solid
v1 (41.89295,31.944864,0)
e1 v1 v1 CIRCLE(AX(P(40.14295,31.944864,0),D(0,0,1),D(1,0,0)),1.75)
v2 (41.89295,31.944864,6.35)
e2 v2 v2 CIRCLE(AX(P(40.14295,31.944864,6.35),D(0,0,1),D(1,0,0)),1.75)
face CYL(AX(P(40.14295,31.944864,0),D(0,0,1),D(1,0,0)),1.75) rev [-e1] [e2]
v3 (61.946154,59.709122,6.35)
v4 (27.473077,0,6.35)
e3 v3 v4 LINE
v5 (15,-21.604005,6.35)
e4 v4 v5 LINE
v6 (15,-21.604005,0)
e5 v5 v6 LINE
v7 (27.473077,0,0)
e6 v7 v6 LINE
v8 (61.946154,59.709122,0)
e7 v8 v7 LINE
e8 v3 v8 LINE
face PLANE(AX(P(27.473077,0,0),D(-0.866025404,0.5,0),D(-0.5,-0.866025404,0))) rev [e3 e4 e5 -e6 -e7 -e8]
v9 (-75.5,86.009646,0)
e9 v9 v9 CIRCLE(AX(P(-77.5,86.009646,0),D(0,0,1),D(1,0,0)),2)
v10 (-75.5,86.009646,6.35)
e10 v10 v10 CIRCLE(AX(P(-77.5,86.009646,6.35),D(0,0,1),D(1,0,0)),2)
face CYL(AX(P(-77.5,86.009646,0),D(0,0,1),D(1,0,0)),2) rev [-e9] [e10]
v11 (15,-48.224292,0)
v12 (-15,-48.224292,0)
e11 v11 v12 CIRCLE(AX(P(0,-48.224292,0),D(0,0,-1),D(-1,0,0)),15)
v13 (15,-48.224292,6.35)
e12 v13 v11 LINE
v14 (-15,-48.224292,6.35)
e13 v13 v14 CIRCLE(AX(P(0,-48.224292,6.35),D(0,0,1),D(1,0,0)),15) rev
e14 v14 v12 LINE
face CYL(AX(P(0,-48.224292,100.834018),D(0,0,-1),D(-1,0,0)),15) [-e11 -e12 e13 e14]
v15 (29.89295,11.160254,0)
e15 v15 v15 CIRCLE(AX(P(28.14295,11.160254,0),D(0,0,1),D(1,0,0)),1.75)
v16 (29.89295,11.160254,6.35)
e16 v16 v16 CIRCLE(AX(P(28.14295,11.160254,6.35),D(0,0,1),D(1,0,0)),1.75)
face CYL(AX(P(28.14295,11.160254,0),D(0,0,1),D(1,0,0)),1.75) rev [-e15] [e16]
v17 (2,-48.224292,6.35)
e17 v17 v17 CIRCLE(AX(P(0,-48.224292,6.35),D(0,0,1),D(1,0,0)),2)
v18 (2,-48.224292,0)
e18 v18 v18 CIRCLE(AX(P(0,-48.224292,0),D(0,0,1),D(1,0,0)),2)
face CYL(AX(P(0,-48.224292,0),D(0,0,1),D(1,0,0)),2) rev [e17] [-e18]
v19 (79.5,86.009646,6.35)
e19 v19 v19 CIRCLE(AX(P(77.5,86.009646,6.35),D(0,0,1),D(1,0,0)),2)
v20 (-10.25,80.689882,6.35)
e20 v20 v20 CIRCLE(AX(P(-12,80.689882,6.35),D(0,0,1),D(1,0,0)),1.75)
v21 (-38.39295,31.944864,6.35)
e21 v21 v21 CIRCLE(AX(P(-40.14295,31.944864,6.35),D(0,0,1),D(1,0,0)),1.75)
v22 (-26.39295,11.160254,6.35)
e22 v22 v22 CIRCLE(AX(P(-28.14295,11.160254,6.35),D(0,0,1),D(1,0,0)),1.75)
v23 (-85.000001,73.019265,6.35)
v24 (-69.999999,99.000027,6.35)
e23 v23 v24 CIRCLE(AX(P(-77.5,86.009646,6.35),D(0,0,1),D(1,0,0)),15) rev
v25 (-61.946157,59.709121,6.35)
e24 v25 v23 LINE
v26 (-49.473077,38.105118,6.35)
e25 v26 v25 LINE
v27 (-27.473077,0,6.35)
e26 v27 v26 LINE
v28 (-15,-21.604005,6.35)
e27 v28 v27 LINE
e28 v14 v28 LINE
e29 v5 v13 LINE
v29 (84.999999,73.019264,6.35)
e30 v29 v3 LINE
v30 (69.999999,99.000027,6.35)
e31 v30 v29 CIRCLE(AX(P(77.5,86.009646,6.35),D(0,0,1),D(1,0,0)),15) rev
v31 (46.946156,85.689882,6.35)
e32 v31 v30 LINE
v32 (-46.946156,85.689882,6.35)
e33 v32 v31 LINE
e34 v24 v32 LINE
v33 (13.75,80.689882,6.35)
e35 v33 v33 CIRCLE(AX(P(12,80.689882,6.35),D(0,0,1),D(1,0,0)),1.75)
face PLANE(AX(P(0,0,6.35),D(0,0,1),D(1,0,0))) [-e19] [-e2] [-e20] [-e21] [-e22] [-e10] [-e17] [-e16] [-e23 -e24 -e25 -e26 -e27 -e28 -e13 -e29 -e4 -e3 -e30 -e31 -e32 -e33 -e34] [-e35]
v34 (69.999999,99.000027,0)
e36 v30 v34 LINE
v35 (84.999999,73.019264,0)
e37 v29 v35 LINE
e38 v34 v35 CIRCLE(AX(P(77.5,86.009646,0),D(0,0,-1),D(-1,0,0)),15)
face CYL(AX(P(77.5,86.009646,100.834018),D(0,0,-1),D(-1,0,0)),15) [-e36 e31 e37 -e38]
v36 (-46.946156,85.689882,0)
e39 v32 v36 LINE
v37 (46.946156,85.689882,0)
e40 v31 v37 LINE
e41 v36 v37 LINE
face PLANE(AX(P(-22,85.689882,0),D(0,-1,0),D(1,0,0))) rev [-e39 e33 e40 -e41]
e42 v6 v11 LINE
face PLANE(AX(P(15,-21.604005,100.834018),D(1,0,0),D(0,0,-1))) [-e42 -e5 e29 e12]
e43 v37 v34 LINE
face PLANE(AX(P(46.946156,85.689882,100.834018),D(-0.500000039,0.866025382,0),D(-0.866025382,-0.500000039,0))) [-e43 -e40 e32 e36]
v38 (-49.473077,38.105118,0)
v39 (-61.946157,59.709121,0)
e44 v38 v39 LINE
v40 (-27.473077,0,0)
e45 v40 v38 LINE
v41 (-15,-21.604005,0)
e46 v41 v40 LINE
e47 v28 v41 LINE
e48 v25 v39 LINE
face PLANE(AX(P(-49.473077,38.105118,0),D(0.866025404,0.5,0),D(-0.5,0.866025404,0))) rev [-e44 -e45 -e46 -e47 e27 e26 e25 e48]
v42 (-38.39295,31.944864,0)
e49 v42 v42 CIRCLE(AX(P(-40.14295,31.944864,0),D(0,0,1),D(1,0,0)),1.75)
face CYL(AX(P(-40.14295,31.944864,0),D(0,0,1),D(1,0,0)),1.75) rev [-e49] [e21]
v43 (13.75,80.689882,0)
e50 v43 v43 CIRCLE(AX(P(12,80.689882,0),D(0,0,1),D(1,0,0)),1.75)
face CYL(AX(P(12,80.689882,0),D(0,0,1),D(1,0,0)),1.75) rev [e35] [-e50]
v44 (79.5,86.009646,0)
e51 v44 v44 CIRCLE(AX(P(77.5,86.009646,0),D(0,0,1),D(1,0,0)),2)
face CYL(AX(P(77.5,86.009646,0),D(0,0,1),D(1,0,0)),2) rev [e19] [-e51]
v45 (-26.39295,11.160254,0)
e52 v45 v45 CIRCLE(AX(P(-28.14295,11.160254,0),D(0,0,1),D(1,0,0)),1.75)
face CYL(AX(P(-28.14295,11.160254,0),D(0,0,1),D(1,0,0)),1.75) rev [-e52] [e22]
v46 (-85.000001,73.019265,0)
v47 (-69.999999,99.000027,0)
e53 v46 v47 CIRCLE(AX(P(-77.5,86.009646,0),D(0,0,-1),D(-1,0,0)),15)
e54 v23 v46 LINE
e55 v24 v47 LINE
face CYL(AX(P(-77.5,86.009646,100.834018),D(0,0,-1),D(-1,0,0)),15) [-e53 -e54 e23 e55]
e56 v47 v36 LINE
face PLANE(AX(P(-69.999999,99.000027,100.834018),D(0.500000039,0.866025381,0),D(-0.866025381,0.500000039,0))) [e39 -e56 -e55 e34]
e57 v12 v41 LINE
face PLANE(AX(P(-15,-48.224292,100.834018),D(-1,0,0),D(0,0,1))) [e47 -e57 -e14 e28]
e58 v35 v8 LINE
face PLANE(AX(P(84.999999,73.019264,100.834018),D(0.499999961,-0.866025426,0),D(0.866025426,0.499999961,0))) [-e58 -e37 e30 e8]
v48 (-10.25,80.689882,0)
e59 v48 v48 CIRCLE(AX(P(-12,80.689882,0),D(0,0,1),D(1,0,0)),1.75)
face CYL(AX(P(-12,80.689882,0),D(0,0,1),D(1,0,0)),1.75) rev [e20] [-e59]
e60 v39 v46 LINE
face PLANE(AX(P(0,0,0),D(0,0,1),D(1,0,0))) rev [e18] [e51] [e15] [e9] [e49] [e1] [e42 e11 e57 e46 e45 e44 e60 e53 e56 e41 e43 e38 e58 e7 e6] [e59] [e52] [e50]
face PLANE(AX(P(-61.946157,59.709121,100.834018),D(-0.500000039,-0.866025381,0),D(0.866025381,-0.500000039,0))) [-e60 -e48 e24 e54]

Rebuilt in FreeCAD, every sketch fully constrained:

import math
import FreeCAD as App
import Part
import Sketcher

V = App.Vector
Q = App.Units.Quantity

doc = App.newDocument("Part")
body = doc.addObject("PartDesign::Body", "Body")

# Sketch on XY plane
sketch1 = body.newObject("Sketcher::SketchObject", "Sketch")
sketch1.AttachmentSupport = (doc.getObject("XY_Plane"), [""])
sketch1.MapMode = "FlatFace"
sketch1.addGeometry(Part.LineSegment(V(-71.473077, 0, 0), V(71.473077, 0, 0)), False)
sketch1.addGeometry(Part.LineSegment(V(71.473077, 0, 0), V(0, 123.795, 0)), False)
sketch1.addGeometry(Part.LineSegment(V(0, 123.795, 0), V(-71.473077, 0, 0)), False)
sketch1.addConstraint(Sketcher.Constraint("Coincident", 0, 2, 1, 1))
sketch1.addConstraint(Sketcher.Constraint("Coincident", 1, 2, 2, 1))
sketch1.addConstraint(Sketcher.Constraint("Coincident", 2, 2, 0, 1))
sketch1.addConstraint(Sketcher.Constraint("Horizontal", 0))
sketch1.addConstraint(Sketcher.Constraint("Symmetric", 0, 2, 2, 2, -1, 1))
sketch1.addConstraint(Sketcher.Constraint("PointOnObject", 1, 2, -2))
sketch1.addConstraint(Sketcher.Constraint("Angle", 1, Q("120 deg")))
sketch1.addConstraint(Sketcher.Constraint("DistanceY", -1, 1, 1, 2, 123.795))
pad1 = body.newObject("PartDesign::Pad", "Pad")
pad1.Profile = sketch1
pad1.Length = 6.35

# Sketch on XY plane
sketch2 = body.newObject("Sketcher::SketchObject", "Sketch001")
sketch2.AttachmentSupport = (doc.getObject("XY_Plane"), [""])
sketch2.MapMode = "FlatFace"
sketch2.AttachmentOffset = App.Placement(V(0, 0, 6.35), App.Rotation())
sketch2.addGeometry(Part.LineSegment(V(-49.473077, 38.105118, 0), V(-71.473077, 0, 0)), False)
sketch2.addGeometry(Part.LineSegment(V(-71.473077, 0, 0), V(-27.473077, 0, 0)), False)
sketch2.addGeometry(Part.LineSegment(V(-27.473077, 0, 0), V(-49.473077, 38.105118, 0)), False)
sketch2.addGeometry(Part.LineSegment(V(27.473077, 0, 0), V(71.473077, 0, 0)), False)
sketch2.addGeometry(Part.LineSegment(V(71.473077, 0, 0), V(49.473077, 38.105118, 0)), False)
sketch2.addGeometry(Part.LineSegment(V(49.473077, 38.105118, 0), V(27.473077, 0, 0)), False)
sketch2.addGeometry(Part.LineSegment(V(0, 123.795, 0), V(-22, 85.689882, 0)), False)
sketch2.addGeometry(Part.LineSegment(V(-22, 85.689882, 0), V(22, 85.689882, 0)), False)
sketch2.addGeometry(Part.LineSegment(V(22, 85.689882, 0), V(0, 123.795, 0)), False)
sketch2.addConstraint(Sketcher.Constraint("Coincident", 0, 2, 1, 1))
sketch2.addConstraint(Sketcher.Constraint("Coincident", 1, 2, 2, 1))
sketch2.addConstraint(Sketcher.Constraint("Coincident", 2, 2, 0, 1))
sketch2.addConstraint(Sketcher.Constraint("Coincident", 3, 2, 4, 1))
sketch2.addConstraint(Sketcher.Constraint("Coincident", 4, 2, 5, 1))
sketch2.addConstraint(Sketcher.Constraint("Coincident", 5, 2, 3, 1))
sketch2.addConstraint(Sketcher.Constraint("Coincident", 6, 2, 7, 1))
sketch2.addConstraint(Sketcher.Constraint("Coincident", 7, 2, 8, 1))
sketch2.addConstraint(Sketcher.Constraint("Coincident", 8, 2, 6, 1))
sketch2.addConstraint(Sketcher.Constraint("Horizontal", 1))
sketch2.addConstraint(Sketcher.Constraint("Horizontal", 3))
sketch2.addConstraint(Sketcher.Constraint("Horizontal", 7))
sketch2.addConstraint(Sketcher.Constraint("Symmetric", 0, 2, 3, 2, -1, 1))
sketch2.addConstraint(Sketcher.Constraint("Symmetric", 2, 2, 4, 2, -2))
sketch2.addConstraint(Sketcher.Constraint("Symmetric", 1, 2, 5, 2, -2))
sketch2.addConstraint(Sketcher.Constraint("PointOnObject", 8, 2, -2))
sketch2.addConstraint(Sketcher.Constraint("Parallel", 2, 4))
sketch2.addConstraint(Sketcher.Constraint("Parallel", 5, 6))
sketch2.addConstraint(Sketcher.Constraint("Parallel", 4, 8))
sketch2.addConstraint(Sketcher.Constraint("Equal", 3, 7))
sketch2.addConstraint(Sketcher.Constraint("DistanceX", 1, 1, 1, 2, 44.0))
sketch2.addConstraint(Sketcher.Constraint("Angle", 0, Q("-120 deg")))
sketch2.addConstraint(Sketcher.Constraint("DistanceY", -1, 1, 8, 2, 123.795))
sketch2.addConstraint(Sketcher.Constraint("DistanceX", 0, 2, -1, 1, 71.473077))
pocket1 = body.newObject("PartDesign::Pocket", "Pocket")
pocket1.Profile = sketch2
pocket1.Type = "ThroughAll"

# Sketch on XY plane
sketch3 = body.newObject("Sketcher::SketchObject", "Sketch002")
sketch3.AttachmentSupport = (doc.getObject("XY_Plane"), [""])
sketch3.MapMode = "FlatFace"
sketch3.AttachmentOffset = App.Placement(V(0, 0, 6.35), App.Rotation())
sketch3.addGeometry(Part.Circle(V(-40.14295, 31.944864, 0), V(0, 0, 1), 1.75), False)
sketch3.addGeometry(Part.Circle(V(-28.14295, 11.160254, 0), V(0, 0, 1), 1.75), False)
sketch3.addGeometry(Part.Circle(V(28.14295, 11.160254, 0), V(0, 0, 1), 1.75), False)
sketch3.addGeometry(Part.Circle(V(40.14295, 31.944864, 0), V(0, 0, 1), 1.75), False)
sketch3.addGeometry(Part.Circle(V(-12, 80.689882, 0), V(0, 0, 1), 1.75), False)
sketch3.addGeometry(Part.Circle(V(12, 80.689882, 0), V(0, 0, 1), 1.75), False)
sketch3.addConstraint(Sketcher.Constraint("Equal", 0, 1))
sketch3.addConstraint(Sketcher.Constraint("Equal", 1, 2))
sketch3.addConstraint(Sketcher.Constraint("Equal", 2, 3))
sketch3.addConstraint(Sketcher.Constraint("Equal", 3, 4))
sketch3.addConstraint(Sketcher.Constraint("Equal", 4, 5))
sketch3.addConstraint(Sketcher.Constraint("Symmetric", 1, 3, 2, 3, -2))
sketch3.addConstraint(Sketcher.Constraint("Symmetric", 0, 3, 3, 3, -2))
sketch3.addConstraint(Sketcher.Constraint("Symmetric", 4, 3, 5, 3, -2))
sketch3.addConstraint(Sketcher.Constraint("Diameter", 0, 3.5))
sketch3.addConstraint(Sketcher.Constraint("DistanceX", 4, 3, -1, 1, 12.0))
sketch3.addConstraint(Sketcher.Constraint("DistanceX", 0, 3, 1, 3, 12.0))
sketch3.addConstraint(Sketcher.Constraint("DistanceX", 1, 3, 2, 3, 56.285899))
sketch3.addConstraint(Sketcher.Constraint("DistanceY", 1, 3, 0, 3, 20.78461))
sketch3.addConstraint(Sketcher.Constraint("DistanceY", 0, 3, 4, 3, 48.745019))
sketch3.addConstraint(Sketcher.Constraint("DistanceY", -1, 1, 0, 3, 31.944864))
pocket2 = body.newObject("PartDesign::Pocket", "Pocket001")
pocket2.Profile = sketch3
pocket2.Type = "ThroughAll"

# Sketch on XY plane
sketch4 = body.newObject("Sketcher::SketchObject", "Sketch003")
sketch4.AttachmentSupport = (doc.getObject("XY_Plane"), [""])
sketch4.MapMode = "FlatFace"
sketch4.addGeometry(Part.LineSegment(V(-49.473077, 38.105118, 0), V(-61.946157, 59.709121, 0)), False)
sketch4.addGeometry(Part.LineSegment(V(-61.946157, 59.709121, 0), V(-85.000001, 73.019265, 0)), False)
sketch4.addGeometry(Part.ArcOfCircle(Part.Circle(V(-77.5, 86.009646, 0), V(0, 0, 1), 15), math.radians(59.999997), math.radians(239.999997)), False)
sketch4.addGeometry(Part.LineSegment(V(-69.999999, 99.000027, 0), V(-46.946156, 85.689882, 0)), False)
sketch4.addGeometry(Part.LineSegment(V(-46.946156, 85.689882, 0), V(-22, 85.689882, 0)), False)
sketch4.addGeometry(Part.LineSegment(V(-22, 85.689882, 0), V(-49.473077, 38.105118, 0)), False)
sketch4.addGeometry(Part.LineSegment(V(22, 85.689882, 0), V(46.946156, 85.689882, 0)), False)
sketch4.addGeometry(Part.LineSegment(V(46.946156, 85.689882, 0), V(69.999999, 99.000027, 0)), False)
sketch4.addGeometry(Part.ArcOfCircle(Part.Circle(V(77.5, 86.009646, 0), V(0, 0, 1), 15), math.radians(-60.000003), math.radians(120.000003)), False)
sketch4.addGeometry(Part.LineSegment(V(84.999999, 73.019264, 0), V(61.946154, 59.709122, 0)), False)
sketch4.addGeometry(Part.LineSegment(V(61.946154, 59.709122, 0), V(49.473077, 38.105118, 0)), False)
sketch4.addGeometry(Part.LineSegment(V(49.473077, 38.105118, 0), V(22, 85.689882, 0)), False)
sketch4.addGeometry(Part.LineSegment(V(27.473077, 0, 0), V(15, -21.604005, 0)), False)
sketch4.addGeometry(Part.LineSegment(V(15, -21.604005, 0), V(15, -48.224292, 0)), False)
sketch4.addGeometry(Part.ArcOfCircle(Part.Circle(V(0, -48.224292, 0), V(0, 0, 1), 15), math.radians(180), math.radians(360)), False)
sketch4.addGeometry(Part.LineSegment(V(-15, -48.224292, 0), V(-15, -21.604005, 0)), False)
sketch4.addGeometry(Part.LineSegment(V(-15, -21.604005, 0), V(-27.473077, 0, 0)), False)
sketch4.addGeometry(Part.LineSegment(V(-27.473077, 0, 0), V(27.473077, 0, 0)), False)
sketch4.addConstraint(Sketcher.Constraint("Coincident", 0, 2, 1, 1))
sketch4.addConstraint(Sketcher.Constraint("Tangent", 1, 2, 2, 2))
sketch4.addConstraint(Sketcher.Constraint("Tangent", 2, 1, 3, 1))
sketch4.addConstraint(Sketcher.Constraint("Coincident", 3, 2, 4, 1))
sketch4.addConstraint(Sketcher.Constraint("Coincident", 4, 2, 5, 1))
sketch4.addConstraint(Sketcher.Constraint("Coincident", 5, 2, 0, 1))
sketch4.addConstraint(Sketcher.Constraint("Coincident", 6, 2, 7, 1))
sketch4.addConstraint(Sketcher.Constraint("Tangent", 7, 2, 8, 2))
sketch4.addConstraint(Sketcher.Constraint("Tangent", 8, 1, 9, 1))
sketch4.addConstraint(Sketcher.Constraint("Coincident", 9, 2, 10, 1))
sketch4.addConstraint(Sketcher.Constraint("Coincident", 10, 2, 11, 1))
sketch4.addConstraint(Sketcher.Constraint("Coincident", 11, 2, 6, 1))
sketch4.addConstraint(Sketcher.Constraint("Coincident", 12, 2, 13, 1))
sketch4.addConstraint(Sketcher.Constraint("Tangent", 13, 2, 14, 2))
sketch4.addConstraint(Sketcher.Constraint("Tangent", 14, 1, 15, 1))
sketch4.addConstraint(Sketcher.Constraint("Coincident", 15, 2, 16, 1))
sketch4.addConstraint(Sketcher.Constraint("Coincident", 16, 2, 17, 1))
sketch4.addConstraint(Sketcher.Constraint("Coincident", 17, 2, 12, 1))
sketch4.addConstraint(Sketcher.Constraint("Horizontal", 4))
sketch4.addConstraint(Sketcher.Constraint("Horizontal", 6))
sketch4.addConstraint(Sketcher.Constraint("Vertical", 13))
sketch4.addConstraint(Sketcher.Constraint("Vertical", 15))
sketch4.addConstraint(Sketcher.Constraint("Horizontal", 17))
sketch4.addConstraint(Sketcher.Constraint("Equal", 2, 8))
sketch4.addConstraint(Sketcher.Constraint("Equal", 8, 14))
sketch4.addConstraint(Sketcher.Constraint("Symmetric", 16, 2, 17, 2, -1, 1))
sketch4.addConstraint(Sketcher.Constraint("Symmetric", 2, 3, 8, 3, -2))
sketch4.addConstraint(Sketcher.Constraint("Symmetric", 3, 2, 6, 2, -2))
sketch4.addConstraint(Sketcher.Constraint("Symmetric", 0, 2, 9, 2, -2))
sketch4.addConstraint(Sketcher.Constraint("Symmetric", 5, 2, 10, 2, -2))
sketch4.addConstraint(Sketcher.Constraint("Symmetric", 12, 2, 15, 2, -2))
sketch4.addConstraint(Sketcher.Constraint("Parallel", 1, 3))
sketch4.addConstraint(Sketcher.Constraint("Perpendicular", 3, 5))
sketch4.addConstraint(Sketcher.Constraint("Perpendicular", 0, 7))
sketch4.addConstraint(Sketcher.Constraint("Perpendicular", 9, 11))
sketch4.addConstraint(Sketcher.Constraint("Parallel", 10, 12))
sketch4.addConstraint(Sketcher.Constraint("Equal", 1, 3))
sketch4.addConstraint(Sketcher.Constraint("Equal", 10, 12))
sketch4.addConstraint(Sketcher.Constraint("Radius", 2, 15.0))
sketch4.addConstraint(Sketcher.Constraint("Angle", 0, Q("120.000006 deg")))
sketch4.addConstraint(Sketcher.Constraint("DistanceX", 1, 2, -1, 1, 85.000001))
sketch4.addConstraint(Sketcher.Constraint("DistanceX", 4, 2, -1, 1, 22.0))
sketch4.addConstraint(Sketcher.Constraint("DistanceX", 4, 1, 4, 2, 24.946156))
sketch4.addConstraint(Sketcher.Constraint("DistanceY", 13, 2, 13, 1, 26.620287))
sketch4.addConstraint(Sketcher.Constraint("DistanceY", -1, 1, 0, 2, 59.709121))
pad2 = body.newObject("PartDesign::Pad", "Pad001")
pad2.Profile = sketch4
pad2.Length = 6.35

# Sketch on XY plane
sketch5 = body.newObject("Sketcher::SketchObject", "Sketch004")
sketch5.AttachmentSupport = (doc.getObject("XY_Plane"), [""])
sketch5.MapMode = "FlatFace"
sketch5.AttachmentOffset = App.Placement(V(0, 0, 6.35), App.Rotation())
sketch5.addGeometry(Part.Circle(V(-77.5, 86.009646, 0), V(0, 0, 1), 2), False)
sketch5.addGeometry(Part.Circle(V(77.5, 86.009646, 0), V(0, 0, 1), 2), False)
sketch5.addGeometry(Part.Circle(V(0, -48.224292, 0), V(0, 0, 1), 2), False)
sketch5.addConstraint(Sketcher.Constraint("Equal", 0, 1))
sketch5.addConstraint(Sketcher.Constraint("Equal", 1, 2))
sketch5.addConstraint(Sketcher.Constraint("Symmetric", 0, 3, 1, 3, -2))
sketch5.addConstraint(Sketcher.Constraint("PointOnObject", 2, 3, -2))
sketch5.addConstraint(Sketcher.Constraint("Diameter", 0, 4.0))
sketch5.addConstraint(Sketcher.Constraint("DistanceX", 0, 3, 1, 3, 155.0))
sketch5.addConstraint(Sketcher.Constraint("DistanceY", 2, 3, -1, 1, 48.224292))
sketch5.addConstraint(Sketcher.Constraint("DistanceY", -1, 1, 0, 3, 86.009646))
pocket3 = body.newObject("PartDesign::Pocket", "Pocket002")
pocket3.Profile = sketch5
pocket3.Type = "ThroughAll"

doc.recompute()
